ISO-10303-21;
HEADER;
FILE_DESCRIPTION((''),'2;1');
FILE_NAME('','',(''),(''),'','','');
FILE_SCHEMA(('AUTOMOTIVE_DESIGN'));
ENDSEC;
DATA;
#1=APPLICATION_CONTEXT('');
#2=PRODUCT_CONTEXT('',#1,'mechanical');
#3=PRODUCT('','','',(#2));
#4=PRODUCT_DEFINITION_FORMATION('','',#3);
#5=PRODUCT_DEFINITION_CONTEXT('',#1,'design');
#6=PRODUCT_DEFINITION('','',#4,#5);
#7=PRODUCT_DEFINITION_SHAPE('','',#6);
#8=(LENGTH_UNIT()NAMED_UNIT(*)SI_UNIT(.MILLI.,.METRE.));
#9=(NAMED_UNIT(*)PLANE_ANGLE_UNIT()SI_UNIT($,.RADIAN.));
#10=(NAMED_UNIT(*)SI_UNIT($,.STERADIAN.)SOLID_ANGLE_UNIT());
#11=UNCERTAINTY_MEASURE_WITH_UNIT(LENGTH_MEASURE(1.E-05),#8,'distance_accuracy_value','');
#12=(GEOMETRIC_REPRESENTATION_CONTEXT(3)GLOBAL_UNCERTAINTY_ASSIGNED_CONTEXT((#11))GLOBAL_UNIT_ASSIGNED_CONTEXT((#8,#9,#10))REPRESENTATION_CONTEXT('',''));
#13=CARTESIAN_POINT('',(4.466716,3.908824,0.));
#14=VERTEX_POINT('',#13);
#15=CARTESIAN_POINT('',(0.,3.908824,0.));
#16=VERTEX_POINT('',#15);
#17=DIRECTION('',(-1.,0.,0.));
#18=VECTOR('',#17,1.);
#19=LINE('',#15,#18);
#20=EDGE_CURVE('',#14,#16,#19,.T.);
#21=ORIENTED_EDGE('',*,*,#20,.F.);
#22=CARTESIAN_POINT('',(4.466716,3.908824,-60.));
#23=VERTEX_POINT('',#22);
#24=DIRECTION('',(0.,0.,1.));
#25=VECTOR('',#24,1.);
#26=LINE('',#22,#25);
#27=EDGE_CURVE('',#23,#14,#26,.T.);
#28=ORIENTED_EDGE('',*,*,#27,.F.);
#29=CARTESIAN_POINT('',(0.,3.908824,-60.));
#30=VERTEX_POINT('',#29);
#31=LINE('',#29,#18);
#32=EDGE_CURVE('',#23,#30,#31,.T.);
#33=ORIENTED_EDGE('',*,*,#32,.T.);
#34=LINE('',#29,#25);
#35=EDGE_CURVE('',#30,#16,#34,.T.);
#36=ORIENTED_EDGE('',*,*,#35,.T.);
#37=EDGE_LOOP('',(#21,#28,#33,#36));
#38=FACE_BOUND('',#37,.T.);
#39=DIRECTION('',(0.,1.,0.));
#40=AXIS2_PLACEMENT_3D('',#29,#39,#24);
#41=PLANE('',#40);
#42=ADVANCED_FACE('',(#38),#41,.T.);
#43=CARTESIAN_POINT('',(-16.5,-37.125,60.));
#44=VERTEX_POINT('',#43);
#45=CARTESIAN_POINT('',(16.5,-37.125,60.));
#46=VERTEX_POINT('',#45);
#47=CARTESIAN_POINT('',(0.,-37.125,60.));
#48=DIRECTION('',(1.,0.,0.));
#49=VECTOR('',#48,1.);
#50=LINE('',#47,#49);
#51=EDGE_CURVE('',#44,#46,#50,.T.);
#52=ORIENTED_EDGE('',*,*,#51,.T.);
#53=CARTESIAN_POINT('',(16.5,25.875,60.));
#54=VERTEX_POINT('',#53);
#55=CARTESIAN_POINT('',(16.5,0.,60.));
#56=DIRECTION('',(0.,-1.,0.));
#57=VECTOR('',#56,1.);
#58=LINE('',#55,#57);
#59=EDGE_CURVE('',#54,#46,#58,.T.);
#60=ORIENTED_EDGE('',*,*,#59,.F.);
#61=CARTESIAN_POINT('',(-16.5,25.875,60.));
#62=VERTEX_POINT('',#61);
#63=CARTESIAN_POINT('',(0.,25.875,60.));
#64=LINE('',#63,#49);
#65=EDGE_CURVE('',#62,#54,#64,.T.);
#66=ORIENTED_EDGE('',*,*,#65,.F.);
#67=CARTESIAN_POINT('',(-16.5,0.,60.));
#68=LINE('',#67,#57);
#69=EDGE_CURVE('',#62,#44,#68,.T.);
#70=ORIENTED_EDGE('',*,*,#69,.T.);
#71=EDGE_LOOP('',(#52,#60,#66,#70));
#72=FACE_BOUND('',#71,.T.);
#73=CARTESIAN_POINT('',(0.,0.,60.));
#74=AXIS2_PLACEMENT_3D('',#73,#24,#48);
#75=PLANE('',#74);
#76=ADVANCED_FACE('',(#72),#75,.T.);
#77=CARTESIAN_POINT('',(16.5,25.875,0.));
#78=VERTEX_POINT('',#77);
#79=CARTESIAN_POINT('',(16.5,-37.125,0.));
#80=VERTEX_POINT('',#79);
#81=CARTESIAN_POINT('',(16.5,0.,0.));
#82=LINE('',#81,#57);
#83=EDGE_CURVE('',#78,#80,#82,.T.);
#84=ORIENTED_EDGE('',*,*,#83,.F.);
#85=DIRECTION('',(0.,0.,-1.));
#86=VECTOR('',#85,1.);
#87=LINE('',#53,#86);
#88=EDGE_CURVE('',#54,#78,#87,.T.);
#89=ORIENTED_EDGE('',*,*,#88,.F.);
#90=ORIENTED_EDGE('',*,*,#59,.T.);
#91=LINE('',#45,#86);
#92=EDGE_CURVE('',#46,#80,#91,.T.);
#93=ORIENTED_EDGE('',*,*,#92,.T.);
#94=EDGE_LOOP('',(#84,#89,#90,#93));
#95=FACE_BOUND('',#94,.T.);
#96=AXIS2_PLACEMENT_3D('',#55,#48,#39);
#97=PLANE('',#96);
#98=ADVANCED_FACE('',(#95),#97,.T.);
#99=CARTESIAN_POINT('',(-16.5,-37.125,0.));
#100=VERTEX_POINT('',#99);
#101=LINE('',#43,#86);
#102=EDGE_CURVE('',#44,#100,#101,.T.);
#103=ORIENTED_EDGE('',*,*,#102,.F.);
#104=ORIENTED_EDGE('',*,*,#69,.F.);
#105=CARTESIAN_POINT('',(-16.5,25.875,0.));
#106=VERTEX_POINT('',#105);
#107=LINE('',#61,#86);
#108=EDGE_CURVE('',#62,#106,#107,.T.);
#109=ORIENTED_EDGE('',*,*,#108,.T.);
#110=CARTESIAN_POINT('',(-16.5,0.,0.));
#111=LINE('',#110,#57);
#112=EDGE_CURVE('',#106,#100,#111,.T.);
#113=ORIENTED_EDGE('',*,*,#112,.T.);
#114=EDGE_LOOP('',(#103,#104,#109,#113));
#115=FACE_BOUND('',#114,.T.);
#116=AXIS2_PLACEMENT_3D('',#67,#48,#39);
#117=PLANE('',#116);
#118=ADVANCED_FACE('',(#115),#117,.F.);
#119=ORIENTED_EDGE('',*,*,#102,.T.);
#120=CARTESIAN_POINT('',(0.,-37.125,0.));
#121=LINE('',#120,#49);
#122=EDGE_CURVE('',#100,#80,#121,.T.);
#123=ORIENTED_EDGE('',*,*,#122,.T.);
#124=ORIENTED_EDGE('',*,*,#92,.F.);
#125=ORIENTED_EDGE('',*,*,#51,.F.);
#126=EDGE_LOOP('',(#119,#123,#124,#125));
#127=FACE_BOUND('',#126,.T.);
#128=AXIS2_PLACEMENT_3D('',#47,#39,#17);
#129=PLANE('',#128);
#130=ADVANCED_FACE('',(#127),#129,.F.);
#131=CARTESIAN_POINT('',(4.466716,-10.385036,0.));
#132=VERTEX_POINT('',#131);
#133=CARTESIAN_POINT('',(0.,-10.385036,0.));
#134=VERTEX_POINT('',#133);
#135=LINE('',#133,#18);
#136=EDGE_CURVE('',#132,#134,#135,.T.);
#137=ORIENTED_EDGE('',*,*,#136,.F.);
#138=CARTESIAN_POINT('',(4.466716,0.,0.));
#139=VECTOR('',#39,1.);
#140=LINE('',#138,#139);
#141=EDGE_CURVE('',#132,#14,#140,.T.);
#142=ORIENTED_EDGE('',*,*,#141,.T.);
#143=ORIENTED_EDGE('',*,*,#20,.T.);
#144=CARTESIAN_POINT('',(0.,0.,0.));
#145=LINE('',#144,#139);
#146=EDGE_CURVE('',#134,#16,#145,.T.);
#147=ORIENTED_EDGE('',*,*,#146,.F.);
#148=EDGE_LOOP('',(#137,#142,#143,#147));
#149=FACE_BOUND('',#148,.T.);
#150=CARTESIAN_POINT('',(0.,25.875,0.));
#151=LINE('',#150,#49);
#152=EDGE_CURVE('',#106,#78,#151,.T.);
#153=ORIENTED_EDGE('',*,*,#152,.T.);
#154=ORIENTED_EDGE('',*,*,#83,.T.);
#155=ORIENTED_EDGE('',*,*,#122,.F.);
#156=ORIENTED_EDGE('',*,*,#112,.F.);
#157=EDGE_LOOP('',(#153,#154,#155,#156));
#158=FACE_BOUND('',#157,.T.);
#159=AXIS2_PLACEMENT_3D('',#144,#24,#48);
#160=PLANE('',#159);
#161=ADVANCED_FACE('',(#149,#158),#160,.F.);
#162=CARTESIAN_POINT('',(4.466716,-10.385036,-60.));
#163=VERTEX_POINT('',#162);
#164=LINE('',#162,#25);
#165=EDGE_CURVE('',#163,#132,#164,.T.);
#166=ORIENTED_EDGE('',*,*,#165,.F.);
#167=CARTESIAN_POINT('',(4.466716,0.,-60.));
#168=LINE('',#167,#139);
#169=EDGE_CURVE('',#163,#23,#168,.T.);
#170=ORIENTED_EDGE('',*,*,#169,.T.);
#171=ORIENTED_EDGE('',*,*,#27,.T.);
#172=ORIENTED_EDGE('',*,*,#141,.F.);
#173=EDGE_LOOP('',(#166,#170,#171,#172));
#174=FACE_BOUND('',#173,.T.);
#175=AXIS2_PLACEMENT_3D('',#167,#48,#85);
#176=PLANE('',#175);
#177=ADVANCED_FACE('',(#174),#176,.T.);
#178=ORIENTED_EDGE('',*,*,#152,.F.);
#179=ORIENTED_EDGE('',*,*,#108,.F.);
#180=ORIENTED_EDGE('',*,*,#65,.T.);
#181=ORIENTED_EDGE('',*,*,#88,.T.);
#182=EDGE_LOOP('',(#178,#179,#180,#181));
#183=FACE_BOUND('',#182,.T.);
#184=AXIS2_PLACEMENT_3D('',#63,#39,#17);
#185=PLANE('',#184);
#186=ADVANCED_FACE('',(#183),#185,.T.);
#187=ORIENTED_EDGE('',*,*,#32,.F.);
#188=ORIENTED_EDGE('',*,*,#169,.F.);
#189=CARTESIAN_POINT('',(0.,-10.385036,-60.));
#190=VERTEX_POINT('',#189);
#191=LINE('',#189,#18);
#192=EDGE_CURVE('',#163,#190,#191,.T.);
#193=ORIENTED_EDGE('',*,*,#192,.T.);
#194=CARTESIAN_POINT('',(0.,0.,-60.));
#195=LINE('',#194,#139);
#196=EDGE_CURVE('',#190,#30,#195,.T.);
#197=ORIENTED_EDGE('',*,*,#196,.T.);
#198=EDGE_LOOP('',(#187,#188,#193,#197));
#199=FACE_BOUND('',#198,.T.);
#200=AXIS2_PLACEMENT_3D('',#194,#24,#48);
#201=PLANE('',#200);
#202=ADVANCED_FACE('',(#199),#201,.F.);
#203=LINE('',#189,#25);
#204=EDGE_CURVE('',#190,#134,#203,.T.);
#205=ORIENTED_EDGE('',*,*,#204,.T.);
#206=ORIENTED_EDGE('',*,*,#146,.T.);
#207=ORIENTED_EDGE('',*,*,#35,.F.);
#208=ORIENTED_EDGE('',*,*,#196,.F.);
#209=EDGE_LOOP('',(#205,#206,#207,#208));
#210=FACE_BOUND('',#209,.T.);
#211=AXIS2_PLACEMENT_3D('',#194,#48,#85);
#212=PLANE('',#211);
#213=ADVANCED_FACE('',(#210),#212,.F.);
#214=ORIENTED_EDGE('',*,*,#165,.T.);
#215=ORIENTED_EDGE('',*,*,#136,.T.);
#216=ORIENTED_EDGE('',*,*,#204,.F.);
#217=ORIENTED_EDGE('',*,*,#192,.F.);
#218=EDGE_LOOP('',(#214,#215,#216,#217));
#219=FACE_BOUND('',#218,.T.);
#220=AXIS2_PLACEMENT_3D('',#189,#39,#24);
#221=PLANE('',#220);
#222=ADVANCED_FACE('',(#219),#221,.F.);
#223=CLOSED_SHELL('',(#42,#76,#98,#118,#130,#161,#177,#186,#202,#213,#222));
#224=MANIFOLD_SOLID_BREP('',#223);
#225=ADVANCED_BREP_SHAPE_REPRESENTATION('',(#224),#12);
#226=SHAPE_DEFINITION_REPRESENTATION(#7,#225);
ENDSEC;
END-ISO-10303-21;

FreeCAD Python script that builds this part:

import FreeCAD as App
import Part
import Sketcher
Q = App.Units.Quantity


def add_polygon(sketch, points):
    """Adds a closed chain of lines whose ends are joined by coincident constraints."""
    first, n = sketch.GeometryCount, len(points)
    for a, b in zip(points, points[1:] + points[:1]):
        sketch.addGeometry(Part.LineSegment(App.Vector(*a, 0), App.Vector(*b, 0)), False)
    for i in range(n):
        sketch.addConstraint(Sketcher.Constraint("Coincident", first + i, 2, first + (i + 1) % n, 1))

doc = App.newDocument("Part")
params = doc.addObject("Spreadsheet::Sheet", "Params")
for row, (alias, value) in enumerate([
    ("sketch1_width", "33 mm"),
    ("sketch1_height", "63 mm"),
    ("pad1_length", "60 mm"),
    ("pad2_length", "60 mm"),
], start=1):
    params.set(f"A{row}", alias)
    params.set(f"B{row}", "=" + value)
    params.setAlias(f"B{row}", alias)

body = doc.addObject("PartDesign::Body", "Body")

sketch1 = body.newObject("Sketcher::SketchObject", "Sketch")
sketch1.AttachmentSupport = (doc.getObject("XY_Plane"), [""])
sketch1.MapMode = "FlatFace"
add_polygon(sketch1, [(-16.5, 25.875), (-16.5, -37.125), (16.5, -37.125), (16.5, 25.875)])
sketch1.addConstraint(Sketcher.Constraint("Vertical", 0))
sketch1.addConstraint(Sketcher.Constraint("Horizontal", 1))
sketch1.addConstraint(Sketcher.Constraint("Vertical", 2))
sketch1.addConstraint(Sketcher.Constraint("Horizontal", 3))
sketch1.addConstraint(Sketcher.Constraint("DistanceX", 1, 1, 1, 2, Q("33 mm")))
sketch1.addConstraint(Sketcher.Constraint("DistanceY", 0, 2, 0, 1, Q("63 mm")))
sketch1.addConstraint(Sketcher.Constraint("DistanceX", 0, 2, -1, 1, Q("16.5 mm")))
sketch1.addConstraint(Sketcher.Constraint("DistanceY", 0, 2, -1, 1, Q("37.125 mm")))
sketch1.setExpression("Constraints[8]", "Params.sketch1_width")
sketch1.setExpression("Constraints[9]", "Params.sketch1_height")
pad1 = body.newObject("PartDesign::Pad", "Pad")
pad1.Profile = sketch1
pad1.setExpression("Length", "Params.pad1_length")

sketch2 = body.newObject("Sketcher::SketchObject", "Sketch001")
sketch2.AttachmentSupport = (doc.getObject("XY_Plane"), [""])
sketch2.MapMode = "FlatFace"
add_polygon(sketch2, [(0, 3.908824), (0, -10.385036), (4.466716, -10.385036), (4.466716, 3.908824)])
sketch2.addConstraint(Sketcher.Constraint("Vertical", 0))
sketch2.addConstraint(Sketcher.Constraint("Horizontal", 1))
sketch2.addConstraint(Sketcher.Constraint("Vertical", 2))
sketch2.addConstraint(Sketcher.Constraint("Horizontal", 3))
sketch2.addConstraint(Sketcher.Constraint("PointOnObject", 0, 2, -2))
sketch2.addConstraint(Sketcher.Constraint("DistanceY", 0, 2, 0, 1, Q("14.29386 mm")))
sketch2.addConstraint(Sketcher.Constraint("DistanceX", 1, 1, 1, 2, Q("4.466716 mm")))
sketch2.addConstraint(Sketcher.Constraint("DistanceY", 0, 2, -1, 1, Q("10.385036 mm")))
pad2 = body.newObject("PartDesign::Pad", "Pad001")
pad2.Profile = sketch2
pad2.setExpression("Length", "Params.pad2_length")
pad2.Reversed = True

doc.recompute()
